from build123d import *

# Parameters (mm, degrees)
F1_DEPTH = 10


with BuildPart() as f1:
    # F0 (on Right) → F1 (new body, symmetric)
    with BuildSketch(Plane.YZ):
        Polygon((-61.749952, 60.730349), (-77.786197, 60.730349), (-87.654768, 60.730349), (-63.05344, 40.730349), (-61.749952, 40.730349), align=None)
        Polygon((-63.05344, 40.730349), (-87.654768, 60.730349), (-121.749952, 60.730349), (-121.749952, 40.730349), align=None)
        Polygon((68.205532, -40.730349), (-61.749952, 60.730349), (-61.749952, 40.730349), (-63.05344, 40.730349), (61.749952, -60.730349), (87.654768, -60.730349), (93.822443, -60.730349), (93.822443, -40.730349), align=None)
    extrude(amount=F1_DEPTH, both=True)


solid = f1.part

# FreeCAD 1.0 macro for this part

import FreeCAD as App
import Part
import Sketcher
from FreeCAD import Vector
Q = App.Units.Quantity


def add_polygon(sketch, points):
    """Adds a closed chain of lines whose ends are joined by coincident constraints."""
    first, n = sketch.GeometryCount, len(points)
    for a, b in zip(points, points[1:] + points[:1]):
        sketch.addGeometry(Part.LineSegment(App.Vector(*a, 0), App.Vector(*b, 0)), False)
    for i in range(n):
        sketch.addConstraint(Sketcher.Constraint("Coincident", first + i, 2, first + (i + 1) % n, 1))

doc = App.newDocument("Part")
body = doc.addObject("PartDesign::Body", "Body")

sketch1 = body.newObject("Sketcher::SketchObject", "Sketch")
sketch1.AttachmentSupport = (doc.getObject("YZ_Plane"), [""])
sketch1.MapMode = "FlatFace"
add_polygon(sketch1, [(-62, 61), (-122, 61), (-122, 41), (-63, 41), (62, -61), (94, -61), (94, -41), (68, -41)])
sketch1.addConstraint(Sketcher.Constraint("Horizontal", 0))
sketch1.addConstraint(Sketcher.Constraint("Vertical", 1))
sketch1.addConstraint(Sketcher.Constraint("Horizontal", 2))
sketch1.addConstraint(Sketcher.Constraint("Horizontal", 4))
sketch1.addConstraint(Sketcher.Constraint("Vertical", 5))
sketch1.addConstraint(Sketcher.Constraint("Horizontal", 6))
sketch1.addConstraint(Sketcher.Constraint("Symmetric", 3, 2, 7, 2, -1, 1))
sketch1.addConstraint(Sketcher.Constraint("Equal", 1, 5))
sketch1.addConstraint(Sketcher.Constraint("DistanceX", 0, 2, 0, 1, Q("60 mm")))
sketch1.addConstraint(Sketcher.Constraint("DistanceY", 1, 2, 1, 1, Q("20 mm")))
sketch1.addConstraint(Sketcher.Constraint("DistanceX", 2, 1, 2, 2, Q("58.696512 mm")))
sketch1.addConstraint(Sketcher.Constraint("DistanceX", 4, 1, 4, 2, Q("32.072491 mm")))
sketch1.addConstraint(Sketcher.Constraint("DistanceX", 6, 2, 6, 1, Q("25.616911 mm")))
sketch1.addConstraint(Sketcher.Constraint("Distance", 7, Q("164.871772 mm")))
sketch1.addConstraint(Sketcher.Constraint("DistanceX", 0, 2, -1, 1, Q("121.749952 mm")))
pad1 = body.newObject("PartDesign::Pad", "Pad")
pad1.Profile = sketch1
pad1.Length = 20
pad1.Midplane = True

doc.recompute()
